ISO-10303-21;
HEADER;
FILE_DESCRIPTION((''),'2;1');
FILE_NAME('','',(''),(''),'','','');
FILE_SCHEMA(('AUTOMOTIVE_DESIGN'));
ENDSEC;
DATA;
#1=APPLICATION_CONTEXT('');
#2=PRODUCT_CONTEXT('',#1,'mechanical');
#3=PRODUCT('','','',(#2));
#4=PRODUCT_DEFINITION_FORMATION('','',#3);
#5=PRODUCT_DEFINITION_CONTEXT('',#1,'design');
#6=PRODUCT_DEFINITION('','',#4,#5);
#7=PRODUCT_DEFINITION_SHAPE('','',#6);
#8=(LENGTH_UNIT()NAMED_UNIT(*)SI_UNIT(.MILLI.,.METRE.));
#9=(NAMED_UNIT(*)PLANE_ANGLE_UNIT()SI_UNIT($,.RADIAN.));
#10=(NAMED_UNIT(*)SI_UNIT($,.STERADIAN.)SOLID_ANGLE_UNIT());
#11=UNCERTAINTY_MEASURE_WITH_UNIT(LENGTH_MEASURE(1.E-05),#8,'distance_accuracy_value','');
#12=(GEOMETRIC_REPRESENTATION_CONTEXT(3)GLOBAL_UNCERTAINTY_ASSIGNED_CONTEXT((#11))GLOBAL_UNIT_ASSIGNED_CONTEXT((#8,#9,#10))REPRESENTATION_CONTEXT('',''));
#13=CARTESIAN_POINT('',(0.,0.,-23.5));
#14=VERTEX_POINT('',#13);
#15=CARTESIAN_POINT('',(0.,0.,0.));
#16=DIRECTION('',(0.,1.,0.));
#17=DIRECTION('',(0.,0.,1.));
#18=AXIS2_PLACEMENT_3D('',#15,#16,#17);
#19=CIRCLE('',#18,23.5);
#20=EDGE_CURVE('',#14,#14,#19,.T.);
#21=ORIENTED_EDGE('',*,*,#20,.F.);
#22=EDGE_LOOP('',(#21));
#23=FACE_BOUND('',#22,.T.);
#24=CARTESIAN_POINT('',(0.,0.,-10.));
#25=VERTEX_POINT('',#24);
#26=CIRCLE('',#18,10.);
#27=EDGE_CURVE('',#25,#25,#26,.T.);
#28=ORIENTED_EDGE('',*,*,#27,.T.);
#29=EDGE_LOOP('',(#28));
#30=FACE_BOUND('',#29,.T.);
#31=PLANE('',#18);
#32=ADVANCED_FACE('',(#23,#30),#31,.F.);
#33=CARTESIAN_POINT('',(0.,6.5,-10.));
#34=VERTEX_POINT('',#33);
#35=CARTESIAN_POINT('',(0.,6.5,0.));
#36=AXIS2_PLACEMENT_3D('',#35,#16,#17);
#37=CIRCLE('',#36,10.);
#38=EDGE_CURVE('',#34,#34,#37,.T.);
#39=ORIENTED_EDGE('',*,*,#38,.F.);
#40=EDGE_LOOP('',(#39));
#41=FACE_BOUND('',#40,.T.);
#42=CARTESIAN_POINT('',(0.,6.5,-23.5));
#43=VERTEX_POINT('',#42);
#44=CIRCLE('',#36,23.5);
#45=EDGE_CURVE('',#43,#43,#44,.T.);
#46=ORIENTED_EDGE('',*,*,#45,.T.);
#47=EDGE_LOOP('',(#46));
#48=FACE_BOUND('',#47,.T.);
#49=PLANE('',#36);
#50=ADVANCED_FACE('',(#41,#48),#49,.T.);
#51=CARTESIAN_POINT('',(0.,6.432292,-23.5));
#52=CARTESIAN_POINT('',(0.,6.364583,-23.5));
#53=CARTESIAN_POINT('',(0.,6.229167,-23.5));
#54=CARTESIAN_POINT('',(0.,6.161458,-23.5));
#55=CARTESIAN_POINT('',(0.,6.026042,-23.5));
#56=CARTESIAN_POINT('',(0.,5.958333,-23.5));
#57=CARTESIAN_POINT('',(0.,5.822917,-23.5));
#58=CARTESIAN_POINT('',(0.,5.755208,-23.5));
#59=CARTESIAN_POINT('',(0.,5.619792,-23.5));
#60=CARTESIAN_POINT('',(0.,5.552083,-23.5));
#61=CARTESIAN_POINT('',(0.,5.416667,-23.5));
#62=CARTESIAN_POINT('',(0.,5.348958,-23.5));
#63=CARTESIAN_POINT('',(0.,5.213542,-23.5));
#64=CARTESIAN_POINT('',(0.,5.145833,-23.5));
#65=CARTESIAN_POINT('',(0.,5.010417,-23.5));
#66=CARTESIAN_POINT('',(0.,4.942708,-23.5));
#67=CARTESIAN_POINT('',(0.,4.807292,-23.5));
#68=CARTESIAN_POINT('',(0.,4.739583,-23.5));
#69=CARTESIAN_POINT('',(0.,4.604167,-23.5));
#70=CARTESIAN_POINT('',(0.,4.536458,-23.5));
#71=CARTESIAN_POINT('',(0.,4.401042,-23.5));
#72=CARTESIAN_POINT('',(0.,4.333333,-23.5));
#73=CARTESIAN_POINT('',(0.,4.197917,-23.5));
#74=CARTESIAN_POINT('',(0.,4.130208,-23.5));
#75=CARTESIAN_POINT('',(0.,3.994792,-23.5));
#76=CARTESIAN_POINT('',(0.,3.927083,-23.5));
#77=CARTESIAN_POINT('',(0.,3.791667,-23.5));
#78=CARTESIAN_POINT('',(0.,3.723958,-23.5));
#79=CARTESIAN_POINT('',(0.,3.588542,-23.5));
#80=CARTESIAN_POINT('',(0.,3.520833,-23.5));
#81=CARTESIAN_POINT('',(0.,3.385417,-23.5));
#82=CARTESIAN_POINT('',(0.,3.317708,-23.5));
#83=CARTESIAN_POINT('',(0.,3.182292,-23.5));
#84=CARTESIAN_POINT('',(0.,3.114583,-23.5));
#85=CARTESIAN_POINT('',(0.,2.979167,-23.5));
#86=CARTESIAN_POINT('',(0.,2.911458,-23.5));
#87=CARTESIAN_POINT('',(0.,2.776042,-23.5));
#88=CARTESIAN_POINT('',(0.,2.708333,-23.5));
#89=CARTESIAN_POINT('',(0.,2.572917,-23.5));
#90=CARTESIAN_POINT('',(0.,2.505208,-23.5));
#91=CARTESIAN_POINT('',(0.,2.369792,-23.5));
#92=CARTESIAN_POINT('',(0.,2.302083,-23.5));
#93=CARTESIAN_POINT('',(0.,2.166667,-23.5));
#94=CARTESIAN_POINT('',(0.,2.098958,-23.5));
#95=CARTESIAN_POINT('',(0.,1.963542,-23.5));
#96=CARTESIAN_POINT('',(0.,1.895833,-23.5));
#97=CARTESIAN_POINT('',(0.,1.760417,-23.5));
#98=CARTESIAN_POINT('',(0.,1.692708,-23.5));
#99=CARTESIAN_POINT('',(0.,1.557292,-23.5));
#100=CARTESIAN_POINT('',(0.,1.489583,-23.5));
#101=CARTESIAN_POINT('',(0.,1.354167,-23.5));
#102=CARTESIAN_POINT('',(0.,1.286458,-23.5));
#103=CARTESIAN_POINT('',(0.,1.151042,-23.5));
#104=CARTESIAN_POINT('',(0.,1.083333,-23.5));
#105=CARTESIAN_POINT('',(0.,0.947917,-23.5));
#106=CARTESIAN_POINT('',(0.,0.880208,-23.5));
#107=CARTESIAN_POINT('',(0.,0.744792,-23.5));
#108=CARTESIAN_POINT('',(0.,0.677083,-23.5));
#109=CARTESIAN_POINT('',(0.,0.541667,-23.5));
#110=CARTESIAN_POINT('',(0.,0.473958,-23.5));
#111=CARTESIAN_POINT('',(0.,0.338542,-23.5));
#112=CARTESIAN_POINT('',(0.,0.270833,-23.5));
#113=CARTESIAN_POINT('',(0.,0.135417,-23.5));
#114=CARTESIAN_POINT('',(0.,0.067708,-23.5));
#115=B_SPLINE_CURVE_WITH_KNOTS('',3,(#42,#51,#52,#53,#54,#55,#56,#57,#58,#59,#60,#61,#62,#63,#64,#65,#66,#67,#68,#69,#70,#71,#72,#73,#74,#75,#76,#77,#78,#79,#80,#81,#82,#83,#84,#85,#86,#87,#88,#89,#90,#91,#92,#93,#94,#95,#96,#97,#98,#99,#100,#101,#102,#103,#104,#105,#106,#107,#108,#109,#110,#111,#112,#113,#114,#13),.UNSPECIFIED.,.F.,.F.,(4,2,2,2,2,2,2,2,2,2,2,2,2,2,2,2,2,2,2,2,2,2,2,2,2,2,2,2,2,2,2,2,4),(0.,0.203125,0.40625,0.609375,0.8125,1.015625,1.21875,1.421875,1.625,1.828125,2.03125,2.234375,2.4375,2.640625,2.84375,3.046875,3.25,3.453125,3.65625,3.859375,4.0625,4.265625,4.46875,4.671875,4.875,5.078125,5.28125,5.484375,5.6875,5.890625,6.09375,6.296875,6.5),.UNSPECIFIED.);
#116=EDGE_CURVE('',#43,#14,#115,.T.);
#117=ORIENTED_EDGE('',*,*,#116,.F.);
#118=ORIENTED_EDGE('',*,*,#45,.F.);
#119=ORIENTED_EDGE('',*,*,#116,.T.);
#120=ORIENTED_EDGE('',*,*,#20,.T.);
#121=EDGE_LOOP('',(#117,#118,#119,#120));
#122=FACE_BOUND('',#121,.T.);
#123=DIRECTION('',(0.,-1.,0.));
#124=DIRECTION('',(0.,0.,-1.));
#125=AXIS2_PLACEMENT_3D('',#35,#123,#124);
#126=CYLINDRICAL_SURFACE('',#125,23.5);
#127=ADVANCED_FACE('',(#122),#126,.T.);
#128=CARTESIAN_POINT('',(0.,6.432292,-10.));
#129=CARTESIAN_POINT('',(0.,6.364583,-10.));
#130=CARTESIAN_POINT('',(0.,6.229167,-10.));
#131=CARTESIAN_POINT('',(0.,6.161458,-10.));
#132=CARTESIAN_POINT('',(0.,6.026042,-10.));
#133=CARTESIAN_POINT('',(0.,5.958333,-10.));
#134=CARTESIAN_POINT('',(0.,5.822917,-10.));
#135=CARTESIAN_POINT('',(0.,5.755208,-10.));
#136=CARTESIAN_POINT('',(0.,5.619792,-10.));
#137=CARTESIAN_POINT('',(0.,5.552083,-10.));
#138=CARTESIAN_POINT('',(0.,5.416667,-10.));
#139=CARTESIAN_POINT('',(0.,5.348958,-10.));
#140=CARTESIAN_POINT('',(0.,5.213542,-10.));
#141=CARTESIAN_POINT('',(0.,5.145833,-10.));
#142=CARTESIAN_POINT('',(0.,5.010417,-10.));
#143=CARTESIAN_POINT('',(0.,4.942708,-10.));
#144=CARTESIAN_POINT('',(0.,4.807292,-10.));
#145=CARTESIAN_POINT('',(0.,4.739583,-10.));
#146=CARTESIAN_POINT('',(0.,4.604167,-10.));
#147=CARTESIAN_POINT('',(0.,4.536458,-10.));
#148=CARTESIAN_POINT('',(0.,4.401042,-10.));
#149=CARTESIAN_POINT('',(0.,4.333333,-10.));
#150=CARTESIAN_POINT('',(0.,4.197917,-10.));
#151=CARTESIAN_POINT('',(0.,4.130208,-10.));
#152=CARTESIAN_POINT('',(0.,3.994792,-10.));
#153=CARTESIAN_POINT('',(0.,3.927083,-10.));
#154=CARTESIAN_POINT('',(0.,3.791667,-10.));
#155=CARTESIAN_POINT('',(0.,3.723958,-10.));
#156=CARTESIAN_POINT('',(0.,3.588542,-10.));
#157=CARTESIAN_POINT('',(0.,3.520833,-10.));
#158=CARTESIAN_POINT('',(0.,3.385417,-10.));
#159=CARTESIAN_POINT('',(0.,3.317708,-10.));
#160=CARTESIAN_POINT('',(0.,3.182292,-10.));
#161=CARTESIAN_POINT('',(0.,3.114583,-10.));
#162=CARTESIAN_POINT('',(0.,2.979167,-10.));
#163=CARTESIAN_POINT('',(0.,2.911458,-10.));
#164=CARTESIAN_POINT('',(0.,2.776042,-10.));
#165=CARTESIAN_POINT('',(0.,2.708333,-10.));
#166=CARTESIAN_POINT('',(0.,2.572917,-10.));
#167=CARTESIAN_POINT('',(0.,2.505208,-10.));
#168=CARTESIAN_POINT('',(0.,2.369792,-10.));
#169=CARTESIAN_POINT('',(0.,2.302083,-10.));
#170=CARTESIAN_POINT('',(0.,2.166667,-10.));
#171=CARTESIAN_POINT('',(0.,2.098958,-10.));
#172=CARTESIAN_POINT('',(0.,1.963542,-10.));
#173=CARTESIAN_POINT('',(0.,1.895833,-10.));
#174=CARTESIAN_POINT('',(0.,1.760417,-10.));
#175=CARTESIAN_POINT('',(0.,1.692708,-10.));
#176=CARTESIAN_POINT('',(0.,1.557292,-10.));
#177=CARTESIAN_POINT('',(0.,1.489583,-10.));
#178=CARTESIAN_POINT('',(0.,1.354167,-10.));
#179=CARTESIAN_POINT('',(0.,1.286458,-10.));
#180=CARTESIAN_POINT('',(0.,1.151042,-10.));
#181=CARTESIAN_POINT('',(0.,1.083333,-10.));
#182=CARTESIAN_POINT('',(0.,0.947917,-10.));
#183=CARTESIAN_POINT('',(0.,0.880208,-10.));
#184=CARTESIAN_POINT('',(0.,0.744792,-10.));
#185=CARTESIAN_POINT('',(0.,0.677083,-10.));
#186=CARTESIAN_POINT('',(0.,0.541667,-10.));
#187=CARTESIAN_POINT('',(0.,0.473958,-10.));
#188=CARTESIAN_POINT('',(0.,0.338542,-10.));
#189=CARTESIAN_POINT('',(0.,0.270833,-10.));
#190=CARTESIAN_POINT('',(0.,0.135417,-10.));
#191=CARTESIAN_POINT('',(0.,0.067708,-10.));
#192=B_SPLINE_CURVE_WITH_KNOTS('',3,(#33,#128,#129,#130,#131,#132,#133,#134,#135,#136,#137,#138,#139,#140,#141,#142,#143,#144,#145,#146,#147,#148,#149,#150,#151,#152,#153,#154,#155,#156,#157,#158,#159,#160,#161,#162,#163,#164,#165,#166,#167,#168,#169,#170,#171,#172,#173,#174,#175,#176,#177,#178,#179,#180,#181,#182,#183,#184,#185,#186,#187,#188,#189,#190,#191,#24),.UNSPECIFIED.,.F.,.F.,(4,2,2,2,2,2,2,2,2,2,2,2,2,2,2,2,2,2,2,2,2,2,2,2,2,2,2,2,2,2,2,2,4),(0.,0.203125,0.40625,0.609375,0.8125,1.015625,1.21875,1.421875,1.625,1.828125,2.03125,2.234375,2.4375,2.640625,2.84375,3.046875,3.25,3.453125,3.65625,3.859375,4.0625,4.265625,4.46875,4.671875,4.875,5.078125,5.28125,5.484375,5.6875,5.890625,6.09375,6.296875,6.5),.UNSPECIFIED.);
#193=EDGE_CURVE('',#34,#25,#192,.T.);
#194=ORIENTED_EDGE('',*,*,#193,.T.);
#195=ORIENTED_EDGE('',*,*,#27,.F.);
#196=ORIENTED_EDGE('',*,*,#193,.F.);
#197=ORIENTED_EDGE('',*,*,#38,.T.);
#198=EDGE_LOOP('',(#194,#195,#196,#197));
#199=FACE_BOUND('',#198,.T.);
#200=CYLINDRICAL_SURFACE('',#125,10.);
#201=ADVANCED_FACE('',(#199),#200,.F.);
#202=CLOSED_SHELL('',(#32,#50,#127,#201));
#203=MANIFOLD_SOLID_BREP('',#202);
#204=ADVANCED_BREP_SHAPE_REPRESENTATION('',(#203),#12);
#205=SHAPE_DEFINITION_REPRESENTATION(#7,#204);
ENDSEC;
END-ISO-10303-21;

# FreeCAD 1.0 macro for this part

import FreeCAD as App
import Part
import Sketcher

V = App.Vector

doc = App.newDocument("Part")
body = doc.addObject("PartDesign::Body", "Body")

sketch1 = body.newObject("Sketcher::SketchObject", "Sketch")
sketch1.AttachmentSupport = (doc.getObject("XZ_Plane"), [""])
sketch1.MapMode = "FlatFace"
sketch1.addGeometry([
    Part.Circle(V(0, 0, 0), V(0, 0, 1), 24),
    Part.Circle(V(0, 0, 0), V(0, 0, 1), 10),
], False)
sketch1.addConstraint([
    Sketcher.Constraint("Coincident", 0, 3, -1, 1),
    Sketcher.Constraint("Coincident", 1, 3, -1, 1),
    Sketcher.Constraint("Diameter", 0, 47.0),
    Sketcher.Constraint("Diameter", 1, 20.0),
])
pad1 = body.newObject("PartDesign::Pad", "Pad")
pad1.Profile = sketch1
pad1.Length = 6.5
pad1.Reversed = True

doc.recompute()
